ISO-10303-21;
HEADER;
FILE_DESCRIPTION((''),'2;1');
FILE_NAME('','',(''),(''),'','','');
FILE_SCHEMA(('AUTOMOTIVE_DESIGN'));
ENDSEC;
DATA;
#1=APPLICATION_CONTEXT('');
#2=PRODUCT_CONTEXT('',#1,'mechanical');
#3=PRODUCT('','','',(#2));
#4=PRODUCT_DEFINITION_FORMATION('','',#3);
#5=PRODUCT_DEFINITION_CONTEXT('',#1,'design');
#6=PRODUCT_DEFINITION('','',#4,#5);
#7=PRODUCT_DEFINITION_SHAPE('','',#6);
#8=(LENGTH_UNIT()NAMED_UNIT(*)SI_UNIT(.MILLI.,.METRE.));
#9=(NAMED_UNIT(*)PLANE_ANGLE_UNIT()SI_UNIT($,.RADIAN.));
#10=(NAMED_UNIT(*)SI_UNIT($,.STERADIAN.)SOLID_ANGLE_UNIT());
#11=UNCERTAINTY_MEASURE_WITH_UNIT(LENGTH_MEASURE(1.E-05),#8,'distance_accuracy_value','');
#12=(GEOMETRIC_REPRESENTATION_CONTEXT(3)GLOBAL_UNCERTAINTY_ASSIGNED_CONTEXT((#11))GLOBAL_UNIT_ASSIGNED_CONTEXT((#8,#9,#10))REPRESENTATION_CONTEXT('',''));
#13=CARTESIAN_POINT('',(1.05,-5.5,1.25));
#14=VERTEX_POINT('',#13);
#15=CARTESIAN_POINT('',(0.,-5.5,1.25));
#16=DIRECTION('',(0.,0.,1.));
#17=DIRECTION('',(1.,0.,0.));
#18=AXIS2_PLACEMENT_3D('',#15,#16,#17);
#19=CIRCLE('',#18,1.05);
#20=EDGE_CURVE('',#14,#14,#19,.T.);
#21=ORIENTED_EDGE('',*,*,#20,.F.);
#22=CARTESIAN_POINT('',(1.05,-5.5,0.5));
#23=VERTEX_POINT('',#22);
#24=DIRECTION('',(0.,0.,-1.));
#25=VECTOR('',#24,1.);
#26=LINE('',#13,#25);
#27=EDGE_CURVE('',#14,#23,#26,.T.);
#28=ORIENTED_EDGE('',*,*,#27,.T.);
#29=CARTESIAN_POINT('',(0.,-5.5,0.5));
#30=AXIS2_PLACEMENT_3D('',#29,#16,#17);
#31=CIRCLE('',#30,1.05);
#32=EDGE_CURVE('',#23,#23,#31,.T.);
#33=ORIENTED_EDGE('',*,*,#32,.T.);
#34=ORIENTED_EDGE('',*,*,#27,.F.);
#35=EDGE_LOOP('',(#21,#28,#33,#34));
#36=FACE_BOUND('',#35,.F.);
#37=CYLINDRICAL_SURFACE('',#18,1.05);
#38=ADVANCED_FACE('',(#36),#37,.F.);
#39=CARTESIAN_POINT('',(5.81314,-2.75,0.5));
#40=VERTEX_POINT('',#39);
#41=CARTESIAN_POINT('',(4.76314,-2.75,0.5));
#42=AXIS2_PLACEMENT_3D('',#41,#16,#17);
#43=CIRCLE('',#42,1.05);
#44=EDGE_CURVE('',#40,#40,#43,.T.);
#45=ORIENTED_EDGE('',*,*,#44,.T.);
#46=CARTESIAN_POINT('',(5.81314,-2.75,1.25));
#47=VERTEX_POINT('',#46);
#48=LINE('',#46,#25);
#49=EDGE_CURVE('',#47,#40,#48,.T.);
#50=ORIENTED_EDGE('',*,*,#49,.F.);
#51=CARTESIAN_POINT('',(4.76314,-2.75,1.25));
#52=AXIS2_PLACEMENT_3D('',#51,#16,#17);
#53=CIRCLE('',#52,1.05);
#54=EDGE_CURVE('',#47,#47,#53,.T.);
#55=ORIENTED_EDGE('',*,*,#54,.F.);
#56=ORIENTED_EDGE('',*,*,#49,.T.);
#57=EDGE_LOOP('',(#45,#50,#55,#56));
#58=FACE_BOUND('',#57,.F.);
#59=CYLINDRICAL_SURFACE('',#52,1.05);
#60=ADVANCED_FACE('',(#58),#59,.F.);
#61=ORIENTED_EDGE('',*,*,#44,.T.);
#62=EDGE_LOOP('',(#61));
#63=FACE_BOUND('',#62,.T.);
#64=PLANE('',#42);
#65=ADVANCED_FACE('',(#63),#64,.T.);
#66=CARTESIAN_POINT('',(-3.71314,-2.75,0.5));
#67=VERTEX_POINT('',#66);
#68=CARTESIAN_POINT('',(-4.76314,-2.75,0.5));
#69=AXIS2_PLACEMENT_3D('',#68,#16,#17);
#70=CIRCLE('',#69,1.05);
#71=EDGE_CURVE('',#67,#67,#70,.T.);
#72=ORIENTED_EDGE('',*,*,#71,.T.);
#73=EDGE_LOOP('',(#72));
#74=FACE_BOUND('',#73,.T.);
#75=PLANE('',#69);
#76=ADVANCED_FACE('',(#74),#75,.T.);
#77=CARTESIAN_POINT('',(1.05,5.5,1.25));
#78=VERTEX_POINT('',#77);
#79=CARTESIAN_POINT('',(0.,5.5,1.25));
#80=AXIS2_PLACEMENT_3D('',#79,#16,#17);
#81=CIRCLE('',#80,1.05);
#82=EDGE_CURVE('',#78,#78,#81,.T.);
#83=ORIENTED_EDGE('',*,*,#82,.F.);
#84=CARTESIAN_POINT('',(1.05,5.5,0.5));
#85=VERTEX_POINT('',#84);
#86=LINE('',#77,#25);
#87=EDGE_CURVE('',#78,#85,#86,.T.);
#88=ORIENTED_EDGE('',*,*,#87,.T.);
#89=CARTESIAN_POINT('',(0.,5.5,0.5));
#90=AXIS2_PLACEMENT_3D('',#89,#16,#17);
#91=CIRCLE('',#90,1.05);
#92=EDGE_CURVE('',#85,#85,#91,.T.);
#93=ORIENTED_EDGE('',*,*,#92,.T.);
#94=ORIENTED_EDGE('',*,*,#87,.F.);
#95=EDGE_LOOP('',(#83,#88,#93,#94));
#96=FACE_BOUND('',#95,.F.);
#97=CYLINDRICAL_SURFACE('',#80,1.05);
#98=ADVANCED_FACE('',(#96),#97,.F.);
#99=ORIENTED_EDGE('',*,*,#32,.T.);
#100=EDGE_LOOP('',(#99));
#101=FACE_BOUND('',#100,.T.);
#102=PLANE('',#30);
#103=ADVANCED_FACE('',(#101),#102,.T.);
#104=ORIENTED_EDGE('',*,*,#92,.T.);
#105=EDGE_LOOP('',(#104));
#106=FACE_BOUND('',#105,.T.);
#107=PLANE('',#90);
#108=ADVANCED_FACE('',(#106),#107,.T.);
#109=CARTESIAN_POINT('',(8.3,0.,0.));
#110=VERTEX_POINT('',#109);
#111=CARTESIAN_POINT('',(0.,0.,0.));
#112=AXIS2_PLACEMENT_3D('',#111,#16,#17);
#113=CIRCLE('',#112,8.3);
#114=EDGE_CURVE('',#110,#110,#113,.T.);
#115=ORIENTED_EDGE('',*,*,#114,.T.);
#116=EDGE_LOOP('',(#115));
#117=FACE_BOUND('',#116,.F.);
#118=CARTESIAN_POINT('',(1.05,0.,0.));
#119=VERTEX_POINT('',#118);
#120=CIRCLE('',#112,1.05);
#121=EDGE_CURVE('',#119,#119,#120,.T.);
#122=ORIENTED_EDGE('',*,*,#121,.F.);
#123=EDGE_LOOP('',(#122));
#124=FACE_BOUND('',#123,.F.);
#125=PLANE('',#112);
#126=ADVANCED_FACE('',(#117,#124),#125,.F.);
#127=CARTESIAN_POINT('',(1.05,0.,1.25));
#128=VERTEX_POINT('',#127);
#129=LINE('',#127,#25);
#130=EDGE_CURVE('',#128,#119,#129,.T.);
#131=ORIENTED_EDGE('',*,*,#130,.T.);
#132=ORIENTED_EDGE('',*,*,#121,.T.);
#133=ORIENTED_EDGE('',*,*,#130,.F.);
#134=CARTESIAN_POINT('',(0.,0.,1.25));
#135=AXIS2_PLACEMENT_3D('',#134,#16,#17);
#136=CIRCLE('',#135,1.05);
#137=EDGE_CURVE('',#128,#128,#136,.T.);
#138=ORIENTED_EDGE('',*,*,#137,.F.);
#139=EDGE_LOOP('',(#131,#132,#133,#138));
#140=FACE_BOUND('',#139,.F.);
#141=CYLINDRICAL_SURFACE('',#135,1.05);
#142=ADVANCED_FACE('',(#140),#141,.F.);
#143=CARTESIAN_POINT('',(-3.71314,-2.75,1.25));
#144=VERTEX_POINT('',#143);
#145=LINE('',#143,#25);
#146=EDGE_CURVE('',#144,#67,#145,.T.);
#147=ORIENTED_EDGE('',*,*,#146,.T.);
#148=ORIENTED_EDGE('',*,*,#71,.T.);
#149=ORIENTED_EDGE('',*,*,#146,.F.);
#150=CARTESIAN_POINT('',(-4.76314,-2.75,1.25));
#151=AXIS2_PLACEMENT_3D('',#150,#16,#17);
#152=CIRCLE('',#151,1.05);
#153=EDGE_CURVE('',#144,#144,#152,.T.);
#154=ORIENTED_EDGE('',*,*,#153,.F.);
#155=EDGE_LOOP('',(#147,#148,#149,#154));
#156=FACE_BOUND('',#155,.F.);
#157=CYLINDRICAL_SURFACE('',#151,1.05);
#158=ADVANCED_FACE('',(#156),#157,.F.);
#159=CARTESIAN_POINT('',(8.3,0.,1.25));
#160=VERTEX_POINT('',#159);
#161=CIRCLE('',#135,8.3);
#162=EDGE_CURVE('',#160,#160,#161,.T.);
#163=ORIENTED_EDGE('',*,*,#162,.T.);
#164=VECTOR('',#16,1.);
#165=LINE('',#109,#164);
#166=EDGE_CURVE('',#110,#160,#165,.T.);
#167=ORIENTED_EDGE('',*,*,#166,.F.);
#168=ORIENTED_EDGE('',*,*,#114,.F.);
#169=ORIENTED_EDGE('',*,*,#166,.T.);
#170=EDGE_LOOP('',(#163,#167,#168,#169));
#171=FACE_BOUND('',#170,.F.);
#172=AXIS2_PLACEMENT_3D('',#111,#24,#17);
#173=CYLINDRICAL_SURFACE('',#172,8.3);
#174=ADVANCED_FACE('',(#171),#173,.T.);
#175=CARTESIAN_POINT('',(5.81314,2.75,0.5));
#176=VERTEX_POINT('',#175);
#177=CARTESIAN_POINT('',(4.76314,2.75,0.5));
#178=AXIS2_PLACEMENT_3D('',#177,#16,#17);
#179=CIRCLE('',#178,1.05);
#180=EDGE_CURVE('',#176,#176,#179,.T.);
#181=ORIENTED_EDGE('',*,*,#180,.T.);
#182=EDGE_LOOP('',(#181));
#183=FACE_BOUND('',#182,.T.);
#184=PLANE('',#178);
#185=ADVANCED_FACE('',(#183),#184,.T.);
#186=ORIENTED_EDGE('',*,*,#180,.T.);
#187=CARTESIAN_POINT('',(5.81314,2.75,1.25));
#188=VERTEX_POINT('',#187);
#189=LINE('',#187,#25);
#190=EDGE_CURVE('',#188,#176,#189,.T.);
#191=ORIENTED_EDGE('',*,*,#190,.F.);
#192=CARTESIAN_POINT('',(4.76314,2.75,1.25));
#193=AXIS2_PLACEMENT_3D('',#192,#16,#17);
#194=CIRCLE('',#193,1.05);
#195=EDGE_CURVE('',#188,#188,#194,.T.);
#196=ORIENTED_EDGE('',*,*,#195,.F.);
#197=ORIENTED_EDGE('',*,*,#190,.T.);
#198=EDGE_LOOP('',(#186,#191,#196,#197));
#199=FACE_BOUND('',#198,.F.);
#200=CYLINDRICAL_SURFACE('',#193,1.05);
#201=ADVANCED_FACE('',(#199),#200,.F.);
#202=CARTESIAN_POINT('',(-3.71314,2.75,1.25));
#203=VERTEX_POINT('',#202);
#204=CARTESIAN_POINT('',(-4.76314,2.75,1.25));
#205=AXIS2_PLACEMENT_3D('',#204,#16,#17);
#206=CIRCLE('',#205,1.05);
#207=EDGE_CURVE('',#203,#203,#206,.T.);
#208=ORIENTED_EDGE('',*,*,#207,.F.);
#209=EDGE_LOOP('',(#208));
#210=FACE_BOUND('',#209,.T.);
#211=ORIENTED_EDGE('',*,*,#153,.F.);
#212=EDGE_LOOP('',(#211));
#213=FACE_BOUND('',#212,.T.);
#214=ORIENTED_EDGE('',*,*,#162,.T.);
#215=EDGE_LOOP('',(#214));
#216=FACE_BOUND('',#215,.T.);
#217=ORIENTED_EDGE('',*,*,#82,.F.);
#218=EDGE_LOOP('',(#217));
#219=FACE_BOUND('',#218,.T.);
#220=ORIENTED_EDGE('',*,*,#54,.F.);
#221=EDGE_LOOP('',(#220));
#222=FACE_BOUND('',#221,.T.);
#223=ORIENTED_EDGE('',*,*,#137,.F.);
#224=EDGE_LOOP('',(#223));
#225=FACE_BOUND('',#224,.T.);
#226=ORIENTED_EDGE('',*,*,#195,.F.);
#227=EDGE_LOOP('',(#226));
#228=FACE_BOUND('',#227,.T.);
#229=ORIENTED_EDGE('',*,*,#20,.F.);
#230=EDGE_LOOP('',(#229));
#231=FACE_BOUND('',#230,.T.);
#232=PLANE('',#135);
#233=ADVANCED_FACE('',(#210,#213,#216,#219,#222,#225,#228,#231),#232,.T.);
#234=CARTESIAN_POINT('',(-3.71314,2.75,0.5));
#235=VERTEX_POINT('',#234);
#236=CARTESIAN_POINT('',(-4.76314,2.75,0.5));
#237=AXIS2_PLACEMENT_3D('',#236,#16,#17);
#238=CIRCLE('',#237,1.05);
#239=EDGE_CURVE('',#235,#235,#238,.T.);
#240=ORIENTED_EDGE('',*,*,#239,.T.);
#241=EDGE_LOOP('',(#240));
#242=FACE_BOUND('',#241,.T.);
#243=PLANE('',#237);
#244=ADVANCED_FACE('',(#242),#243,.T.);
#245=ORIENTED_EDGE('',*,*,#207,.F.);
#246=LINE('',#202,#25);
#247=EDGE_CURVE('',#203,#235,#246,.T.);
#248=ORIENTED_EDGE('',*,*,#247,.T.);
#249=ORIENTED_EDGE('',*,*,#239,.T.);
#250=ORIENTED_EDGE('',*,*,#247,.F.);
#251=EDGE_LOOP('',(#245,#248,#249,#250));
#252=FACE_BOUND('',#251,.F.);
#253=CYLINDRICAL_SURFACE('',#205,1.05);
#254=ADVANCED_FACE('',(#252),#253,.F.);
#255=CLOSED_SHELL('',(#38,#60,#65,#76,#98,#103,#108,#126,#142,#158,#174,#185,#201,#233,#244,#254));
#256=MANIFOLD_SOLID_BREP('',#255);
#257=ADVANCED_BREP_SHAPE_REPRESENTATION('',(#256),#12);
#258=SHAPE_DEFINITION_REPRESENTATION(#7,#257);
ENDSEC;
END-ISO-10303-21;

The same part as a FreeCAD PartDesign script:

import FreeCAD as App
import Part
import Sketcher

V = App.Vector
Q = App.Units.Quantity

doc = App.newDocument("Part")
body = doc.addObject("PartDesign::Body", "Body")

# Sketch on XY plane
sketch1 = doc.addObject("Sketcher::SketchObject", "Sketch")
body.addObject(sketch1)
sketch1.AttachmentSupport = (doc.XY_Plane, [""])
sketch1.MapMode = "FlatFace"
sketch1.addGeometry(Part.Circle(V(0, 0, 0), V(0, 0, 1), 8.3), False)
sketch1.addConstraint(Sketcher.Constraint("Coincident", 0, 3, -1, 1))
sketch1.addConstraint(Sketcher.Constraint("Diameter", 0, Q("16.6 mm")))
pad1 = doc.addObject("PartDesign::Pad", "Pad")
body.addObject(pad1)
pad1.Profile = sketch1
pad1.Length = 1.25

# Sketch on XY plane
sketch2 = doc.addObject("Sketcher::SketchObject", "Sketch001")
body.addObject(sketch2)
sketch2.AttachmentSupport = (doc.XY_Plane, [""])
sketch2.MapMode = "FlatFace"
sketch2.AttachmentOffset = App.Placement(V(0, 0, 1.25), App.Rotation())
sketch2.addGeometry(Part.Circle(V(0, 0, 0), V(0, 0, 1), 1.05), False)
sketch2.addConstraint(Sketcher.Constraint("Coincident", 0, 3, -1, 1))
sketch2.addConstraint(Sketcher.Constraint("Diameter", 0, Q("2.1 mm")))
pocket1 = doc.addObject("PartDesign::Pocket", "Pocket")
body.addObject(pocket1)
pocket1.Profile = sketch2
pocket1.Length = 25

# Sketch on XY plane
sketch3 = doc.addObject("Sketcher::SketchObject", "Sketch002")
body.addObject(sketch3)
sketch3.AttachmentSupport = (doc.XY_Plane, [""])
sketch3.MapMode = "FlatFace"
sketch3.AttachmentOffset = App.Placement(V(0, 0, 1.25), App.Rotation())
sketch3.addGeometry(Part.Circle(V(0, 5.5, 0), V(0, 0, 1), 1.05), False)
sketch3.addGeometry(Part.Circle(V(-4.76314, 2.75, 0), V(0, 0, 1), 1.05), False)
sketch3.addGeometry(Part.Circle(V(-4.76314, -2.75, 0), V(0, 0, 1), 1.05), False)
sketch3.addGeometry(Part.Circle(V(0, -5.5, 0), V(0, 0, 1), 1.05), False)
sketch3.addGeometry(Part.Circle(V(4.76314, -2.75, 0), V(0, 0, 1), 1.05), False)
sketch3.addGeometry(Part.Circle(V(4.76314, 2.75, 0), V(0, 0, 1), 1.05), False)
sketch3.addConstraint(Sketcher.Constraint("Equal", 0, 1))
sketch3.addConstraint(Sketcher.Constraint("Equal", 1, 2))
sketch3.addConstraint(Sketcher.Constraint("Equal", 2, 3))
sketch3.addConstraint(Sketcher.Constraint("Equal", 3, 4))
sketch3.addConstraint(Sketcher.Constraint("Equal", 4, 5))
sketch3.addConstraint(Sketcher.Constraint("Symmetric", 0, 3, 3, 3, -1, 1))
sketch3.addConstraint(Sketcher.Constraint("Symmetric", 1, 3, 4, 3, -1, 1))
sketch3.addConstraint(Sketcher.Constraint("Symmetric", 2, 3, 5, 3, -1, 1))
sketch3.addConstraint(Sketcher.Constraint("Symmetric", 2, 3, 4, 3, -2))
sketch3.addConstraint(Sketcher.Constraint("PointOnObject", 0, 3, -2))
sketch3.addConstraint(Sketcher.Constraint("Diameter", 0, Q("2.1 mm")))
sketch3.addConstraint(Sketcher.Constraint("DistanceY", 3, 3, 0, 3, Q("11 mm")))
sketch3.addConstraint(Sketcher.Constraint("DistanceY", 2, 3, 1, 3, Q("5.5 mm")))
sketch3.addConstraint(Sketcher.Constraint("DistanceX", 1, 3, -1, 1, Q("4.76314 mm")))
pocket2 = doc.addObject("PartDesign::Pocket", "Pocket001")
body.addObject(pocket2)
pocket2.Profile = sketch3
pocket2.Length = 0.75

doc.recompute()
